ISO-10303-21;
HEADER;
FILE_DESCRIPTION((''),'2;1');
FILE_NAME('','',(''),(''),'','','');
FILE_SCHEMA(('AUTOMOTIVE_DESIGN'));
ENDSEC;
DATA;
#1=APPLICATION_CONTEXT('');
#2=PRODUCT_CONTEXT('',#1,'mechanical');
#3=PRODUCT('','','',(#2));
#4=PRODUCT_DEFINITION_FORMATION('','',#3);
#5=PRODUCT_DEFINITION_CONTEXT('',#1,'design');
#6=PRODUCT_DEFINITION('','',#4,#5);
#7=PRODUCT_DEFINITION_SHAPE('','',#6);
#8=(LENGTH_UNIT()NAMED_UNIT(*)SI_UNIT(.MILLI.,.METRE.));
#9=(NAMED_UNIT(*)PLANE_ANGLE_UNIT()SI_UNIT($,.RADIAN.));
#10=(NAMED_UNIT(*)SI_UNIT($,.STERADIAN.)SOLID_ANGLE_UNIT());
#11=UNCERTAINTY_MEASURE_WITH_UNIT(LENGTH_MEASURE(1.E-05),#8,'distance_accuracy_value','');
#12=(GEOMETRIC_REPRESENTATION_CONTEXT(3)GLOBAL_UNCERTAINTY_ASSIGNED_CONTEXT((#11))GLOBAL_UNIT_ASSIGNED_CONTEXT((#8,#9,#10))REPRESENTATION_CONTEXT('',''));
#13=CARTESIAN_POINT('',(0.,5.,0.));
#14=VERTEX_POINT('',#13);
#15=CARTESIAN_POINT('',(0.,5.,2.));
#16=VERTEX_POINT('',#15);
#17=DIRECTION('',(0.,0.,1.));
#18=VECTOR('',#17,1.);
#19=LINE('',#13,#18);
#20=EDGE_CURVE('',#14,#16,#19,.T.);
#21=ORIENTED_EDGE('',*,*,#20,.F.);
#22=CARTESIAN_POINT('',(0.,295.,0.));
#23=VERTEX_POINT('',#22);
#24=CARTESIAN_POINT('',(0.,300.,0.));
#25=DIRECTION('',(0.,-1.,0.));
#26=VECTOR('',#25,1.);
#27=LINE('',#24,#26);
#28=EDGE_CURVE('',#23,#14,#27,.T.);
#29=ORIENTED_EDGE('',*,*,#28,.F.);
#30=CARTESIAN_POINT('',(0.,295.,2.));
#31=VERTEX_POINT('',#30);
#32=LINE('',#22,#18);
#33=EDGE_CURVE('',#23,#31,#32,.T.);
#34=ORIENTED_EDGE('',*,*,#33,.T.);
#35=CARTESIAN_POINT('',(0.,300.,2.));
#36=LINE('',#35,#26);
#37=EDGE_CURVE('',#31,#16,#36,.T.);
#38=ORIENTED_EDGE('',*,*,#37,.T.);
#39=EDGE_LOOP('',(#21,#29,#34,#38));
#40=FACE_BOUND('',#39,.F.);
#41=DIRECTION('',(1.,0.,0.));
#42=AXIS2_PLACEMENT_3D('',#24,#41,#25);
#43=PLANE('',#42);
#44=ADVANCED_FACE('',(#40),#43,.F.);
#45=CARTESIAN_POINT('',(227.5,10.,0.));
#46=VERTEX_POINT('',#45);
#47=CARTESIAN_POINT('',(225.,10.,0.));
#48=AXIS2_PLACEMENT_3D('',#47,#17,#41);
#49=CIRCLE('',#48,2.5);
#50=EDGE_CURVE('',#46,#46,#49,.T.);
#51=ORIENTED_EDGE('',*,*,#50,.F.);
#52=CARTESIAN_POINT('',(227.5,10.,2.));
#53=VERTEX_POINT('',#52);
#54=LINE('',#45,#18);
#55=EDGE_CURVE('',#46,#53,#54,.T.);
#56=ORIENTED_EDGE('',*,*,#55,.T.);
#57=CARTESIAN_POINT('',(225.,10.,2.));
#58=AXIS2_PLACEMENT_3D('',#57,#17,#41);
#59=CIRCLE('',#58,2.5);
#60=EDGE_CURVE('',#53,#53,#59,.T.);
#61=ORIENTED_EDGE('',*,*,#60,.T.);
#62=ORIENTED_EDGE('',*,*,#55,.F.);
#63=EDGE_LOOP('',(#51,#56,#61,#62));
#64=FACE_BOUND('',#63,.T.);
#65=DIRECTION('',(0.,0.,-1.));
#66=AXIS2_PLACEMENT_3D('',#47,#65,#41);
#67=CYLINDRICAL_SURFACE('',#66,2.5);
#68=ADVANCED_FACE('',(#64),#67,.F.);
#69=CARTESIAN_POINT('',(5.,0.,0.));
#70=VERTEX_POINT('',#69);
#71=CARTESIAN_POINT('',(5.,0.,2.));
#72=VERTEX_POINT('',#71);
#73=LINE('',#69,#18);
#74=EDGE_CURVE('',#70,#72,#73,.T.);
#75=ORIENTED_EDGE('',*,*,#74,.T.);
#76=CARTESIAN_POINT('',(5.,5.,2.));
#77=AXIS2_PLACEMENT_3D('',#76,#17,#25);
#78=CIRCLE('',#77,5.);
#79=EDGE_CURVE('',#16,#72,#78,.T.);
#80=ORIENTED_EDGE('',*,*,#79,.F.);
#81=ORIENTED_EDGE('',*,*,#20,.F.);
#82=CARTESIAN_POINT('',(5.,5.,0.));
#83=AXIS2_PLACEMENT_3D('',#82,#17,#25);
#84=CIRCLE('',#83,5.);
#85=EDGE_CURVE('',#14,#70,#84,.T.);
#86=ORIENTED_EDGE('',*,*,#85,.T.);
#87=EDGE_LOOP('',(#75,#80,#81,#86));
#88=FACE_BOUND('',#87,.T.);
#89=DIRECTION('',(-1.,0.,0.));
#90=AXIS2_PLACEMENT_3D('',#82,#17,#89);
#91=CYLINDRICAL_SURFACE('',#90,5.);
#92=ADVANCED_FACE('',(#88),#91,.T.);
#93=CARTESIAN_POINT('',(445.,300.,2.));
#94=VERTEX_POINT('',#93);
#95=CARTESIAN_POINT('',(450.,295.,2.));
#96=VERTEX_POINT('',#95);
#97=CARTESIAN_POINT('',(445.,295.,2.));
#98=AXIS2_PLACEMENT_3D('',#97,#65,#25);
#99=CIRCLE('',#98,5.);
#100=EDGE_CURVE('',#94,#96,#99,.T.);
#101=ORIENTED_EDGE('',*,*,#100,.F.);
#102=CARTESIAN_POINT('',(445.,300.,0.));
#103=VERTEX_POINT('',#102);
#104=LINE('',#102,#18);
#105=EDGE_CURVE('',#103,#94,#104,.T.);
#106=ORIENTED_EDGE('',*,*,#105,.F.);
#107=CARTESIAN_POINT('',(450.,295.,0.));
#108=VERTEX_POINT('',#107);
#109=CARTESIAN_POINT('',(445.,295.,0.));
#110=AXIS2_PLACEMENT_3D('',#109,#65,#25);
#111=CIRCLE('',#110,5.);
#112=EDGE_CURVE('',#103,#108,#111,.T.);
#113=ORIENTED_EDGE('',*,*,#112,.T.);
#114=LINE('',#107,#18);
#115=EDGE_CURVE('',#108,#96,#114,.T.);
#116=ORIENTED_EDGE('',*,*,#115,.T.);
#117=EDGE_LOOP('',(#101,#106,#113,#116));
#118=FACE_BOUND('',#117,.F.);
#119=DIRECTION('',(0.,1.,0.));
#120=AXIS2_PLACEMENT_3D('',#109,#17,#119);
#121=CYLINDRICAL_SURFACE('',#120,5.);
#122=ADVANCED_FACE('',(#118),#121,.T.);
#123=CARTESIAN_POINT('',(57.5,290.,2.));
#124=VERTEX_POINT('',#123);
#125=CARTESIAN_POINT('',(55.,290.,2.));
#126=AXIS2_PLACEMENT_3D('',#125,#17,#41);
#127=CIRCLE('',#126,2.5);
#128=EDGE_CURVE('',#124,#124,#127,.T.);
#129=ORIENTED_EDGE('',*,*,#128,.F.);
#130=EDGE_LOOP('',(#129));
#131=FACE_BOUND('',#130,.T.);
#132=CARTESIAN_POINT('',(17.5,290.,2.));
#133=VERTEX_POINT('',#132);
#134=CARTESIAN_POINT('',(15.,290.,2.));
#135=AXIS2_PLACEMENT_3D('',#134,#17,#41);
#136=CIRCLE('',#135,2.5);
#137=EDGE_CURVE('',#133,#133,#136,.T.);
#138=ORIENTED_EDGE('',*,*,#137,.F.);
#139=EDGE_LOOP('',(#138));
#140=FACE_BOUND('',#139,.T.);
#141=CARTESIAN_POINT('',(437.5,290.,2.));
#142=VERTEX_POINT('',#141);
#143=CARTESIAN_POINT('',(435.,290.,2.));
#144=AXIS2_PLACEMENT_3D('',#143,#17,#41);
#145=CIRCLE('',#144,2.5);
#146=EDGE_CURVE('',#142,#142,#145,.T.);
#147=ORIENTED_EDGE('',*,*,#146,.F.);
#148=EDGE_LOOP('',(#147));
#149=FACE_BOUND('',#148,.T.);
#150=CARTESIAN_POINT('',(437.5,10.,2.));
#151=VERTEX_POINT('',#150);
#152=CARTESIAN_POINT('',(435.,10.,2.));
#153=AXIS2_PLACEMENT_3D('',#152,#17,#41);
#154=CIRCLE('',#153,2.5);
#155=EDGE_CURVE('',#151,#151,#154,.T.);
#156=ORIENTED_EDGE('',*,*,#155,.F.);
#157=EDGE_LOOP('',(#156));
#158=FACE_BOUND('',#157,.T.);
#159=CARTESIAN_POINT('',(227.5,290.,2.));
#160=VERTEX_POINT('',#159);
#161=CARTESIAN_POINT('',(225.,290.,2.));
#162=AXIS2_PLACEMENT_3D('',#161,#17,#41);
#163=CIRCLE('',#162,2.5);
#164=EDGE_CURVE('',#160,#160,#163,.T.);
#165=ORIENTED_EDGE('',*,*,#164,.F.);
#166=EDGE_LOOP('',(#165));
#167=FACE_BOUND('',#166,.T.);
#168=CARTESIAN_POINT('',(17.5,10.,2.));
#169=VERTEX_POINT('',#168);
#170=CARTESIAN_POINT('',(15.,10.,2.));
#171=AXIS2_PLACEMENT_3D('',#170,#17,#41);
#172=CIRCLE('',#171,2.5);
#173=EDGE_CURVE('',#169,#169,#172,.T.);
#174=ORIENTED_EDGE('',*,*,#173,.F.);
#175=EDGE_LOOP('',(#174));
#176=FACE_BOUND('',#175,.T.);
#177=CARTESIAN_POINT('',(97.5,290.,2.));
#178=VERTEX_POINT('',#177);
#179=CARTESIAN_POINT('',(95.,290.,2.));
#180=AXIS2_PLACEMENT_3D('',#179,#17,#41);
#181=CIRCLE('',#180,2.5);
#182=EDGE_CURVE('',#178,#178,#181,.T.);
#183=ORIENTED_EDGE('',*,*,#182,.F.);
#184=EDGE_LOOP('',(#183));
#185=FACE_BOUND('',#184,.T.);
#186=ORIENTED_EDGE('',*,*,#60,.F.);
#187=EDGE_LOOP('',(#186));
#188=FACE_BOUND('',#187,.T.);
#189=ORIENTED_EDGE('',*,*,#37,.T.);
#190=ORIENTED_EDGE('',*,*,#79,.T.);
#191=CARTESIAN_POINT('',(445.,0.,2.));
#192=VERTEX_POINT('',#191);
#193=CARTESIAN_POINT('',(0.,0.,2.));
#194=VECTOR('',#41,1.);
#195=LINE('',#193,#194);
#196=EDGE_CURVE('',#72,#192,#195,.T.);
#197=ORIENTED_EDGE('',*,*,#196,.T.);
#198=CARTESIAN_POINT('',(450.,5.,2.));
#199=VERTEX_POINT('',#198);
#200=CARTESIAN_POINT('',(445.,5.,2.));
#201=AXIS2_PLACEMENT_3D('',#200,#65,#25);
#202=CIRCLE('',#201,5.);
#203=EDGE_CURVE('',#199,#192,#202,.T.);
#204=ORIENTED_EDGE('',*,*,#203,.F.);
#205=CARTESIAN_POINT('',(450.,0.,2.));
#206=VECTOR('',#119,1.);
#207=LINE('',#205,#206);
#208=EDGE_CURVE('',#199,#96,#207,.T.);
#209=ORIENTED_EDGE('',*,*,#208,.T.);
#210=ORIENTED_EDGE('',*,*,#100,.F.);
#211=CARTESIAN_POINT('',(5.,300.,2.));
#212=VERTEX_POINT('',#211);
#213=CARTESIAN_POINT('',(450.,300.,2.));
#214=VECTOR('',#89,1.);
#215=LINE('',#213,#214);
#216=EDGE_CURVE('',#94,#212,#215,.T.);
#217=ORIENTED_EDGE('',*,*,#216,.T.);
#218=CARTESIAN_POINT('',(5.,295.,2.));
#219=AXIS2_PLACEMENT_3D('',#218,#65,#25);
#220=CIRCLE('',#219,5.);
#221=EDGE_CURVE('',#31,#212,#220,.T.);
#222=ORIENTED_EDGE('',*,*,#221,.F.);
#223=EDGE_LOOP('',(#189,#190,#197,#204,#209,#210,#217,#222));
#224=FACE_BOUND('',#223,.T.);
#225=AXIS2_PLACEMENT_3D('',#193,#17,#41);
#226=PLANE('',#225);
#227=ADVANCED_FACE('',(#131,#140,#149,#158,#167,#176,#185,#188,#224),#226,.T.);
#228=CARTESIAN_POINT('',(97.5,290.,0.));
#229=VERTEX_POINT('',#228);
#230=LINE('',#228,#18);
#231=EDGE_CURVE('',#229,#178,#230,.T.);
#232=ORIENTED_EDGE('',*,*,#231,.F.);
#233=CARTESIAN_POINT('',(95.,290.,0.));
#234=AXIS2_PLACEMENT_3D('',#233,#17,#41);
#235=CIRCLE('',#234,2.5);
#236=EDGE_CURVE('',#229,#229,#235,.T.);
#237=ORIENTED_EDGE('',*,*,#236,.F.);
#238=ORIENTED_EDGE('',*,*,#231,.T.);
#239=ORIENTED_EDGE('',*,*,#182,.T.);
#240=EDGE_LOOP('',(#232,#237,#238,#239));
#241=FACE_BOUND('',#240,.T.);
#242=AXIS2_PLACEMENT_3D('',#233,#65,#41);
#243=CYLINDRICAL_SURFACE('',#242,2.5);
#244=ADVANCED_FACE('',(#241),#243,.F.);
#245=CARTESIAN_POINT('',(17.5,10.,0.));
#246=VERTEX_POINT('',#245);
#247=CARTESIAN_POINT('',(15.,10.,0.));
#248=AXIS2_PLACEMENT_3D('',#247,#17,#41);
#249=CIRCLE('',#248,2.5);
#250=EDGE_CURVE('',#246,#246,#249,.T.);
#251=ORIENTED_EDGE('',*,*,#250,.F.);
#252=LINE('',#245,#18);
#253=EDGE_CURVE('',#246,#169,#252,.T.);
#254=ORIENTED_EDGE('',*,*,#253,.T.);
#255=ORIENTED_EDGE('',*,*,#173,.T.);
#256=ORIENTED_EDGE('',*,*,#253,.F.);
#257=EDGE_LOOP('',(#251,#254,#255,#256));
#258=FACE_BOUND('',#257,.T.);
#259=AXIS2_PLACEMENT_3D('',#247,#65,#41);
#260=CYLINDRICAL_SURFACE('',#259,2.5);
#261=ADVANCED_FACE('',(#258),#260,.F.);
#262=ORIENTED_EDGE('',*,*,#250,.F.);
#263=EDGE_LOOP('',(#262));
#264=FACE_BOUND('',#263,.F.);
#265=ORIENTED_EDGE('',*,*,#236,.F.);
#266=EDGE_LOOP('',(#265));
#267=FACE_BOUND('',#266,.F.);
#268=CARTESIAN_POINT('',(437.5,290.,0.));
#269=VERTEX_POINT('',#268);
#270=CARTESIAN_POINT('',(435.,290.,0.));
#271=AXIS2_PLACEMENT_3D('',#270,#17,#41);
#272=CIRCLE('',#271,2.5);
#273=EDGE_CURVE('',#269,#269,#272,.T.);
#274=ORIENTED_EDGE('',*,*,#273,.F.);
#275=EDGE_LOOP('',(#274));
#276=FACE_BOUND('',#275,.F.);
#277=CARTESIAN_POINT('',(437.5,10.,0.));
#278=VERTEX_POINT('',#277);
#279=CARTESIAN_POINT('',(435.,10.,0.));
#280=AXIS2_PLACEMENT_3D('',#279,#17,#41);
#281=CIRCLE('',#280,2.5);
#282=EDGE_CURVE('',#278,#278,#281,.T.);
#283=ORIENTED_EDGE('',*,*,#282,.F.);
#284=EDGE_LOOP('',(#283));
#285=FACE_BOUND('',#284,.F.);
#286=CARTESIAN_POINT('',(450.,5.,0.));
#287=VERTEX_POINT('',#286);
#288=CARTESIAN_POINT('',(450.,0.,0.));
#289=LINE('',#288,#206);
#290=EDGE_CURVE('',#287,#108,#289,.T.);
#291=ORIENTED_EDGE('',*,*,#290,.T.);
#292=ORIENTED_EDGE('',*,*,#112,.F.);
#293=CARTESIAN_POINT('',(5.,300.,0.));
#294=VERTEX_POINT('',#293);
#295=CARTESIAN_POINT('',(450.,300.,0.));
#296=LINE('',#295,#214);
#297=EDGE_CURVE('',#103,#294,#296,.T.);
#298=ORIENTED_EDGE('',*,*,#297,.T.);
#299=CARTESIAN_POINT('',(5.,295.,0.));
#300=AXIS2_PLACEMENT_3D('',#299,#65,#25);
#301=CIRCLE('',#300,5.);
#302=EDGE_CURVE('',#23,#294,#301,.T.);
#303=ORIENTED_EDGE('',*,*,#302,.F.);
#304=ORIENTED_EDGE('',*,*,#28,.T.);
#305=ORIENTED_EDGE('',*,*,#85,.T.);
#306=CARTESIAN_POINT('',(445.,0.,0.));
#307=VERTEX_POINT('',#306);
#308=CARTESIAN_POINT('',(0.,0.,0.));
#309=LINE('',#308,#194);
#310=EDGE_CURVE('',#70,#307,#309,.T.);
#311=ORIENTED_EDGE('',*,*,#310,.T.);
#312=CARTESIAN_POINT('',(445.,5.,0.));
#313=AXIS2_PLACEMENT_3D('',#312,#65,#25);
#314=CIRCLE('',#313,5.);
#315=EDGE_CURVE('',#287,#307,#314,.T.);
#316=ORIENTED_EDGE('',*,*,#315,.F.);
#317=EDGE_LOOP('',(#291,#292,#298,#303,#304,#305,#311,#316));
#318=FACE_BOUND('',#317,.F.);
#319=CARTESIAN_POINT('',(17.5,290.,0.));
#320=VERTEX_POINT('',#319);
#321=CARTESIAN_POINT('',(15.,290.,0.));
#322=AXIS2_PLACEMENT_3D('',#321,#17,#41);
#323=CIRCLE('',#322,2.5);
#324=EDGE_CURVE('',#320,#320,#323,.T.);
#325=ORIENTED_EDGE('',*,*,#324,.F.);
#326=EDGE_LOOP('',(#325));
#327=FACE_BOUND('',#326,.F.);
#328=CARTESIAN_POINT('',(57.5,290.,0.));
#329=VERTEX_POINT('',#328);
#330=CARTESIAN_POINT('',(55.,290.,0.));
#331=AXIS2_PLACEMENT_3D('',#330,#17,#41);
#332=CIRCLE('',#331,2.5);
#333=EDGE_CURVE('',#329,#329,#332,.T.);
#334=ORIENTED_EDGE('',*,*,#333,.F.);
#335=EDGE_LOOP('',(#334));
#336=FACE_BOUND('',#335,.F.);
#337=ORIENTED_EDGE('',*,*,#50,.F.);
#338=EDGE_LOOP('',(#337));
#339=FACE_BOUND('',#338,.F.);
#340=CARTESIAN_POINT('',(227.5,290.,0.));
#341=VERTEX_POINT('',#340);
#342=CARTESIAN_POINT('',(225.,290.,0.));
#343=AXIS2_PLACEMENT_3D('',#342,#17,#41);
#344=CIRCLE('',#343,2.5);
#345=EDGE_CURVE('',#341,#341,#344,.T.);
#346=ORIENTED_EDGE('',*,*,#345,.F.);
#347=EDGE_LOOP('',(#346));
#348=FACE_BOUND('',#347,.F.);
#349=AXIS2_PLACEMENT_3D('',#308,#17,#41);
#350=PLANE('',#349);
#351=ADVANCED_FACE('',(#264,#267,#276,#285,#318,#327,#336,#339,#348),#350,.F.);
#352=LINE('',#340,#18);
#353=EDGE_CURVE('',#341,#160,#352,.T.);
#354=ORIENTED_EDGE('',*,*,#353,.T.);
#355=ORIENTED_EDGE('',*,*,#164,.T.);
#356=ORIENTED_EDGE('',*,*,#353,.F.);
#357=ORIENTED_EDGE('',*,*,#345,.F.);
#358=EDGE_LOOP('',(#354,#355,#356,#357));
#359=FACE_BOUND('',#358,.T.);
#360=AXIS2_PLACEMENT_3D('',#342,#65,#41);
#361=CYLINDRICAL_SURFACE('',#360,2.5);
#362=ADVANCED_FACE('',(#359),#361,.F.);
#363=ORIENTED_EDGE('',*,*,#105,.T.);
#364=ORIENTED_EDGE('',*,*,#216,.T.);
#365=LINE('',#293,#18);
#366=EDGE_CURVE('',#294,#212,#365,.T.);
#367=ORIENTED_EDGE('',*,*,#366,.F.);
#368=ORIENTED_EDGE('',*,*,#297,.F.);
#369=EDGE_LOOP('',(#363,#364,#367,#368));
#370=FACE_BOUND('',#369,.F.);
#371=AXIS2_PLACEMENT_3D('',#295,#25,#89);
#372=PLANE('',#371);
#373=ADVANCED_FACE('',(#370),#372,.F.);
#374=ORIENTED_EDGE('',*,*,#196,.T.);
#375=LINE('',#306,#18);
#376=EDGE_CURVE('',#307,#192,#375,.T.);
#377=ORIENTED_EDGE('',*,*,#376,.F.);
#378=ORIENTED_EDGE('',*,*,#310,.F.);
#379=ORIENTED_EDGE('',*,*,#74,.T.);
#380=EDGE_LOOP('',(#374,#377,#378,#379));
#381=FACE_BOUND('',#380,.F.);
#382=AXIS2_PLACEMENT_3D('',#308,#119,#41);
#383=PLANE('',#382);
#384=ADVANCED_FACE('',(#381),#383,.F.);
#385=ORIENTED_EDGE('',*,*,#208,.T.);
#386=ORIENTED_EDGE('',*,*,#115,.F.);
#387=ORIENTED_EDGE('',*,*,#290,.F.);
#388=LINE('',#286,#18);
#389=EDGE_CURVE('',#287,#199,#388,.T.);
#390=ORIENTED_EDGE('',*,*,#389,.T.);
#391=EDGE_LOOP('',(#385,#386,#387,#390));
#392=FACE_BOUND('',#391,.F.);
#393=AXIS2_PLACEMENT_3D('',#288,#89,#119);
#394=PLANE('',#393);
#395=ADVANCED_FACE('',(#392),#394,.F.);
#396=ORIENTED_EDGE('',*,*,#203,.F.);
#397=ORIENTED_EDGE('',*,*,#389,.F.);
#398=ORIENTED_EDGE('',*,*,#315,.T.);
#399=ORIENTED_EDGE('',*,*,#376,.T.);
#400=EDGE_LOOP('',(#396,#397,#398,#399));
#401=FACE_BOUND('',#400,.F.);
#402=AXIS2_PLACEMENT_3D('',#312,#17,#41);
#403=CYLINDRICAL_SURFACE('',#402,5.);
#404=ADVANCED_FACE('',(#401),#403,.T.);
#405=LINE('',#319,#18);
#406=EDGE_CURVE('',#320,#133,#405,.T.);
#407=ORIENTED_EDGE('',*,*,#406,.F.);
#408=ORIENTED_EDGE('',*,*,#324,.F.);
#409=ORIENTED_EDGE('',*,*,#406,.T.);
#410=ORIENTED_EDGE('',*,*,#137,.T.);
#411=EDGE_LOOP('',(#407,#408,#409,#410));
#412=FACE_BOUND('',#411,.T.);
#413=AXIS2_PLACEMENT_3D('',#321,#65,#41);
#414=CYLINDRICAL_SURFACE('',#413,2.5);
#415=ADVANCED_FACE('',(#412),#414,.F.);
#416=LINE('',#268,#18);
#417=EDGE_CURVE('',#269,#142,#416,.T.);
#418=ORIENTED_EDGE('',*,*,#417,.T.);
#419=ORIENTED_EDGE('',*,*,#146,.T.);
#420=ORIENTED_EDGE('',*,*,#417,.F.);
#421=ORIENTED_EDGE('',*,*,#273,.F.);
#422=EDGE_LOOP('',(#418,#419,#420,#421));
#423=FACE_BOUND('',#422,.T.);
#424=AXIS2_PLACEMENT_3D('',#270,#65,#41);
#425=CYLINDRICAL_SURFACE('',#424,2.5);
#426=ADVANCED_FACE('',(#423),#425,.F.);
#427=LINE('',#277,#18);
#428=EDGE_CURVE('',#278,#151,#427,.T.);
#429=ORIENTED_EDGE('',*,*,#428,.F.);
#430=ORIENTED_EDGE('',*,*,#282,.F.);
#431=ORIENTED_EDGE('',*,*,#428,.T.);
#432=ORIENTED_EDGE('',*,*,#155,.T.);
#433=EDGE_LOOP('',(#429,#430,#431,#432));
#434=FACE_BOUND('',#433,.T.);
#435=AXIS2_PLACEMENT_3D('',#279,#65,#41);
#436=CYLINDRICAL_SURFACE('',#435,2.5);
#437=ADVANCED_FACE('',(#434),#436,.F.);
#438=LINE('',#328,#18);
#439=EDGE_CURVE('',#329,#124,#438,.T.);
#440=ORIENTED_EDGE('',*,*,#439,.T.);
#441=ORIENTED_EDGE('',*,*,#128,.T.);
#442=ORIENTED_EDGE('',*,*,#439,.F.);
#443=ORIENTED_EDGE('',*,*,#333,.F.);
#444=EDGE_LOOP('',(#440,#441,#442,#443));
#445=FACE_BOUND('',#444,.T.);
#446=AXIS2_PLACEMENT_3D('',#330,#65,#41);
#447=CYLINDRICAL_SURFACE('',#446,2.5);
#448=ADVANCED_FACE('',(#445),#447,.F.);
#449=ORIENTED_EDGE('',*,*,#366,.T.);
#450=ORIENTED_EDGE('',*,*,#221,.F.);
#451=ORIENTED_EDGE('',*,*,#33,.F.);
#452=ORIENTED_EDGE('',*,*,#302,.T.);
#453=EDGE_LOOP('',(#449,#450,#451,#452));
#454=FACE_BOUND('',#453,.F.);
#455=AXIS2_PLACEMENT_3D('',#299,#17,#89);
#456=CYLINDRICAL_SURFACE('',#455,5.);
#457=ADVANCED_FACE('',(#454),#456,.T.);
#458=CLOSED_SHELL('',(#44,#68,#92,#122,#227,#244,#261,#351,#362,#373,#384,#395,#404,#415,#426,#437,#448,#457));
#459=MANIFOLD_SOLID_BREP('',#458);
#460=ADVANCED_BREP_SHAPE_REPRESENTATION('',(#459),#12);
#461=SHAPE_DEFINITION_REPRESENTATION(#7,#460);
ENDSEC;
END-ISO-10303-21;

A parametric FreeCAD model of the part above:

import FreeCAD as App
import Part
import Sketcher

V = App.Vector
Q = App.Units.Quantity


def edges_at(feature, points):
    """Names of the edges that pass closest to the given points."""
    edges = feature.Shape.Edges
    near = lambda p: min(range(len(edges)), key=lambda i: edges[i].distToShape(Part.Vertex(*p))[0])
    return sorted({f"Edge{near(p) + 1}" for p in points})


def add_polygon(sketch, points):
    """Adds a closed chain of lines whose ends are joined by coincident constraints."""
    first, n = sketch.GeometryCount, len(points)
    for a, b in zip(points, points[1:] + points[:1]):
        sketch.addGeometry(Part.LineSegment(App.Vector(*a, 0), App.Vector(*b, 0)), False)
    for i in range(n):
        sketch.addConstraint(Sketcher.Constraint("Coincident", first + i, 2, first + (i + 1) % n, 1))

doc = App.newDocument("Part")
body = doc.addObject("PartDesign::Body", "Body")

# Sketch on XY plane
sketch1 = body.newObject("Sketcher::SketchObject", "Sketch")
sketch1.AttachmentSupport = (doc.getObject("XY_Plane"), [""])
sketch1.MapMode = "FlatFace"
add_polygon(sketch1, [(0, 300), (0, 0), (450, 0), (450, 300)])  # lines 0-3
sketch1.addGeometry(Part.Circle(V(15, 10, 0), V(0, 0, 1), 2.5), False)  # 4
sketch1.addGeometry(Part.Circle(V(225, 10, 0), V(0, 0, 1), 2.5), False)  # 5
sketch1.addGeometry(Part.Circle(V(435, 10, 0), V(0, 0, 1), 2.5), False)  # 6
sketch1.addGeometry(Part.Circle(V(15, 290, 0), V(0, 0, 1), 2.5), False)  # 7
sketch1.addGeometry(Part.Circle(V(55, 290, 0), V(0, 0, 1), 2.5), False)  # 8
sketch1.addGeometry(Part.Circle(V(95, 290, 0), V(0, 0, 1), 2.5), False)  # 9
sketch1.addGeometry(Part.Circle(V(225, 290, 0), V(0, 0, 1), 2.5), False)  # 10
sketch1.addGeometry(Part.Circle(V(435, 290, 0), V(0, 0, 1), 2.5), False)  # 11
sketch1.addConstraint([
    Sketcher.Constraint("Vertical", 0),
    Sketcher.Constraint("Horizontal", 1),
    Sketcher.Constraint("Vertical", 2),
    Sketcher.Constraint("Horizontal", 3),
    Sketcher.Constraint("Coincident", 0, 2, -1, 1),
    Sketcher.Constraint("Equal", 4, 5),
    Sketcher.Constraint("Equal", 5, 6),
    Sketcher.Constraint("Equal", 6, 7),
    Sketcher.Constraint("Equal", 7, 8),
    Sketcher.Constraint("Equal", 8, 9),
    Sketcher.Constraint("Equal", 9, 10),
    Sketcher.Constraint("Equal", 10, 11),
    Sketcher.Constraint("Horizontal", 4, 3, 5, 3),
    Sketcher.Constraint("Horizontal", 5, 3, 6, 3),
    Sketcher.Constraint("Horizontal", 7, 3, 8, 3),
    Sketcher.Constraint("Horizontal", 8, 3, 9, 3),
    Sketcher.Constraint("Horizontal", 9, 3, 10, 3),
    Sketcher.Constraint("Horizontal", 10, 3, 11, 3),
    Sketcher.Constraint("Vertical", 4, 3, 7, 3),
    Sketcher.Constraint("Vertical", 5, 3, 10, 3),
    Sketcher.Constraint("Vertical", 6, 3, 11, 3),
    Sketcher.Constraint("Diameter", 4, Q("5 mm")),
    Sketcher.Constraint("DistanceX", 1, 1, 1, 2, Q("450 mm")),
    Sketcher.Constraint("DistanceY", 0, 2, 0, 1, Q("300 mm")),
    Sketcher.Constraint("DistanceX", -1, 1, 4, 3, Q("15 mm")),
    Sketcher.Constraint("DistanceY", -1, 1, 4, 3, Q("10 mm")),
    Sketcher.Constraint("DistanceX", 7, 3, 8, 3, Q("40 mm")),
    Sketcher.Constraint("DistanceX", 8, 3, 9, 3, Q("40 mm")),
    Sketcher.Constraint("DistanceX", 6, 3, 1, 2, Q("15 mm")),
    Sketcher.Constraint("DistanceY", 11, 3, 2, 2, Q("10 mm")),
    Sketcher.Constraint("DistanceX", -1, 1, 5, 3, Q("225 mm")),
])
pad1 = body.newObject("PartDesign::Pad", "Pad")
pad1.Profile = sketch1
pad1.Length = 2
doc.recompute()

fillet = body.newObject("PartDesign::Fillet", "Fillet")
fillet.Base = (pad1, edges_at(pad1, [
    (450, 0, 1),
    (450, 300, 1),
    (0, 0, 1),
    (0, 300, 1),
]))
fillet.Radius = 5

doc.recompute()
